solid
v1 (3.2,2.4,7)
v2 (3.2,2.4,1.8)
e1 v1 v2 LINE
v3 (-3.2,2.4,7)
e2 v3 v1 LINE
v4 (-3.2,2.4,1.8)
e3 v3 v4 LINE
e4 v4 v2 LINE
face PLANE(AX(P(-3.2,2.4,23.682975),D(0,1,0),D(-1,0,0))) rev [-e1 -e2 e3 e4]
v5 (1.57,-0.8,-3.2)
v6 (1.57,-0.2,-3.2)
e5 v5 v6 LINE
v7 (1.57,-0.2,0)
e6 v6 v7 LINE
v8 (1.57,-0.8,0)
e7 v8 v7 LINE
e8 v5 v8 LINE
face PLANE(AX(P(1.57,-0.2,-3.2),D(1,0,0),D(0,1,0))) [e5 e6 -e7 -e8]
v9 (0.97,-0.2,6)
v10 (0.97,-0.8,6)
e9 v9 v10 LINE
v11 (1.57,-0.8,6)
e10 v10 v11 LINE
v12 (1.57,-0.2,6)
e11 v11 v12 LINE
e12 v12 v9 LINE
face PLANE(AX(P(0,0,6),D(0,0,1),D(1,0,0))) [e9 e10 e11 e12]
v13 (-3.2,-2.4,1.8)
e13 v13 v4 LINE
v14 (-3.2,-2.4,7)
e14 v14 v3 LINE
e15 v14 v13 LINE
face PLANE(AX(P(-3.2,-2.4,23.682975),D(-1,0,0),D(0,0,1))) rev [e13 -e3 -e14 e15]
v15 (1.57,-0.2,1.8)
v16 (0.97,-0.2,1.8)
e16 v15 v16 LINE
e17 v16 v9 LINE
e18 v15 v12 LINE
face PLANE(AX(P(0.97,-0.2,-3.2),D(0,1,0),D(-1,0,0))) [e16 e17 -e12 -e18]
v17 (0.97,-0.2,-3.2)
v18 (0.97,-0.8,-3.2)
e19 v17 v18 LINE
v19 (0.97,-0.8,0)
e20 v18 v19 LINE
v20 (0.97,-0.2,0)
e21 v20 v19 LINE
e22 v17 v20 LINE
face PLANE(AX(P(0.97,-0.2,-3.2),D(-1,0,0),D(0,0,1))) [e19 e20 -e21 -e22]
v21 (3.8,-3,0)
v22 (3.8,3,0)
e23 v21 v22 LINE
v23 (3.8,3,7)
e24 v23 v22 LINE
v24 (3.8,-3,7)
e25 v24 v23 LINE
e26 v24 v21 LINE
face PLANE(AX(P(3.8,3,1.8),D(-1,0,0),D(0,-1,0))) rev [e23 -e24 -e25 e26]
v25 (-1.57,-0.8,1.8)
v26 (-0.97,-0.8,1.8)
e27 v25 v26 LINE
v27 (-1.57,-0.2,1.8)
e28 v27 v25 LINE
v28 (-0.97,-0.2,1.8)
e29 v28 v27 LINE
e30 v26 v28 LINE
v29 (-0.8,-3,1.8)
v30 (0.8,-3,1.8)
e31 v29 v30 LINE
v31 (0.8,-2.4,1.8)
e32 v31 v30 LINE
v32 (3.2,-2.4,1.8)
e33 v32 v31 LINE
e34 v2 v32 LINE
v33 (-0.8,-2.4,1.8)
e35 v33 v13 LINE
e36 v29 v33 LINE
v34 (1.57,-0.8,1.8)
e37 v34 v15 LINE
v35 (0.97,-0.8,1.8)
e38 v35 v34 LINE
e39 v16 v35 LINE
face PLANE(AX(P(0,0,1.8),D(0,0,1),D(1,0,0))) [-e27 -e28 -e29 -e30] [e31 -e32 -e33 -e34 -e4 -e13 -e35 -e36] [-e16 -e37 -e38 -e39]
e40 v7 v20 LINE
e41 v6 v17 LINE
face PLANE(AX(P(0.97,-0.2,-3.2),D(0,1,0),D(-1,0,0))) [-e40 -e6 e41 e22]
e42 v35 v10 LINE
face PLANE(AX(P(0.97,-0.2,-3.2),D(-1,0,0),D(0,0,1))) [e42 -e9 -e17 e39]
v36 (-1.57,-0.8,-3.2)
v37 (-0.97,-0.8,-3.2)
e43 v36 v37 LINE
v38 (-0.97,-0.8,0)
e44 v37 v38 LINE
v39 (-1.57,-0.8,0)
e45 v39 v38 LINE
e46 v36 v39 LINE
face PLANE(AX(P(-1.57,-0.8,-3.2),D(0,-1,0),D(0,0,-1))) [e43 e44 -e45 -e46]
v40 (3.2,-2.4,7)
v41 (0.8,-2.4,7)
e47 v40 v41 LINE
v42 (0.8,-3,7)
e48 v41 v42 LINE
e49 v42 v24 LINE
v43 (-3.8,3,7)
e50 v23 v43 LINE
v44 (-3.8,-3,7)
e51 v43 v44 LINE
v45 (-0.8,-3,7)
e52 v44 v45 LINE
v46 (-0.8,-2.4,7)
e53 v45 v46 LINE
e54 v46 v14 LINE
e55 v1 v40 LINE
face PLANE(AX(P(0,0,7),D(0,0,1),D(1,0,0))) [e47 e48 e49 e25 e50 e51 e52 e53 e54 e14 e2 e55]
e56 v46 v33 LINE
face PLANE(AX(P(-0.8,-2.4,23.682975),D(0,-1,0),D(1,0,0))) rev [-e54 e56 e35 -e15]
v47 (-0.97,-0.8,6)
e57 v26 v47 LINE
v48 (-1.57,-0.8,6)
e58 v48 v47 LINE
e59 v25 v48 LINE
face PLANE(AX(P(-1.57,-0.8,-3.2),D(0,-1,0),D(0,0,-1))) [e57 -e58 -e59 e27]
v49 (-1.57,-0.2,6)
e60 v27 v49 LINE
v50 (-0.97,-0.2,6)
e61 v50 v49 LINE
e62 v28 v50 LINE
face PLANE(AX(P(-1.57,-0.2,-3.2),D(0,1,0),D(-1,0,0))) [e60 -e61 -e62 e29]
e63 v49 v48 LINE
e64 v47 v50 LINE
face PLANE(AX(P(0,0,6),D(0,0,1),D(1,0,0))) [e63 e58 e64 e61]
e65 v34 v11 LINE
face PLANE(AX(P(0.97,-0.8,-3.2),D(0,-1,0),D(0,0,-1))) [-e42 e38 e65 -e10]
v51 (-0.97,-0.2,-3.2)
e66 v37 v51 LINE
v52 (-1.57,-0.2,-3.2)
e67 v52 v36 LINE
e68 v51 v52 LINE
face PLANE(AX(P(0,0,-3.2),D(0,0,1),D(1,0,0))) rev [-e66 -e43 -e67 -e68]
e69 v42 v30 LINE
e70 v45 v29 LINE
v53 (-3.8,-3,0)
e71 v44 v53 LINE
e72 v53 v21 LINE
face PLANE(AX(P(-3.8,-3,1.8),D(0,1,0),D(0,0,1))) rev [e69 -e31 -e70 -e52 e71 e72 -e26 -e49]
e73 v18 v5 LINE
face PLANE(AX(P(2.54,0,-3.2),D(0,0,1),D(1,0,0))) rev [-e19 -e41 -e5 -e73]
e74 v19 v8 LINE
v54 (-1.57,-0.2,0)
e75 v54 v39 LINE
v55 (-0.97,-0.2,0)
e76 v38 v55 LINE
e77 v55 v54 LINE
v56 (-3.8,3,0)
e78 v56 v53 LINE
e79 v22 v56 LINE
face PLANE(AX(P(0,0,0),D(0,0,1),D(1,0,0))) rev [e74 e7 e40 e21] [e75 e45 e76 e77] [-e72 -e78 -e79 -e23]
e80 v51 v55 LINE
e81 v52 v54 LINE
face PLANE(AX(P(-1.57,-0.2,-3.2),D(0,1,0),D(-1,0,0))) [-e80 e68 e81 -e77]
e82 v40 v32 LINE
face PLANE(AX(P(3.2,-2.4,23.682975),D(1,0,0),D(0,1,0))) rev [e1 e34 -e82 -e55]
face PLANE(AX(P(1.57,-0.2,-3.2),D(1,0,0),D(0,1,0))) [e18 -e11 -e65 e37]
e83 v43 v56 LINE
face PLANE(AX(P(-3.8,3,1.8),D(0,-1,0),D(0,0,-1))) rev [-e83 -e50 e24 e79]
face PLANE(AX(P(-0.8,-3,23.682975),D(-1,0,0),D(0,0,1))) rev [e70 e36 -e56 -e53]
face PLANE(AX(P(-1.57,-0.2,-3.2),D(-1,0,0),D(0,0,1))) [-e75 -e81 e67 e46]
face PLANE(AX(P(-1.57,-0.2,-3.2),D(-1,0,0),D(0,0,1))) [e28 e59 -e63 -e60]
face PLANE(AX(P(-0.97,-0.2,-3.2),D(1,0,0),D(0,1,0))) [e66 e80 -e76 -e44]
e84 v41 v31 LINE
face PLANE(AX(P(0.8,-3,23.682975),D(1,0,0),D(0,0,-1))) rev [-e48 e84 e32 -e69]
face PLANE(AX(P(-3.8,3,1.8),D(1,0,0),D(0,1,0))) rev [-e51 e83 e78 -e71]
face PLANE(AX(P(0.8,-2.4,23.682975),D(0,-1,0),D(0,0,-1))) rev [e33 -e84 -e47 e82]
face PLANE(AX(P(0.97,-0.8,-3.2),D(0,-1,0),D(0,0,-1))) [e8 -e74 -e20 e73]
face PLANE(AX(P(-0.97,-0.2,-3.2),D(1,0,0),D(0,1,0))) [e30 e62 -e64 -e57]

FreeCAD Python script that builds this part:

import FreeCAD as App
import Part
import Sketcher


def add_polygon(sketch, points):
    """Adds a closed chain of lines whose ends are joined by coincident constraints."""
    first, n = sketch.GeometryCount, len(points)
    for a, b in zip(points, points[1:] + points[:1]):
        sketch.addGeometry(Part.LineSegment(App.Vector(*a, 0), App.Vector(*b, 0)), False)
    for i in range(n):
        sketch.addConstraint(Sketcher.Constraint("Coincident", first + i, 2, first + (i + 1) % n, 1))

doc = App.newDocument("Part")
params = doc.addObject("Spreadsheet::Sheet", "Params")
for row, (alias, value) in enumerate([
    ("sketch1_height", "6 mm"),
    ("sketch1_width", "7.6 mm"),
    ("pad1_length", "1.8 mm"),
    ("sketch2_width", "3 mm"),
    ("sketch2_height", "6 mm"),
    ("sketch2_width2", "2.4 mm"),
    ("sketch2_width3", "6.4 mm"),
    ("sketch2_height2", "0.6 mm"),
    ("pad2_length", "5.2 mm"),
    ("sketch3_width", "0.6 mm"),
    ("pad3_length", "9.2 mm"),
    ("linearpattern_pitch", "2.54 mm"),
], start=1):
    params.set(f"A{row}", alias)
    params.set(f"B{row}", "=" + value)
    params.setAlias(f"B{row}", alias)

body = doc.addObject("PartDesign::Body", "Body")

# Sketch on XY plane
sketch1 = body.newObject("Sketcher::SketchObject", "Sketch")
sketch1.AttachmentSupport = (doc.getObject("XY_Plane"), [""])
sketch1.MapMode = "FlatFace"
add_polygon(sketch1, [(-4, 3), (-4, -3), (4, -3), (4, 3)])  # lines 0-3
sketch1.addConstraint([
    Sketcher.Constraint("Vertical", 0),
    Sketcher.Constraint("Horizontal", 1),
    Sketcher.Constraint("Vertical", 2),
    Sketcher.Constraint("Horizontal", 3),
    Sketcher.Constraint("Symmetric", 0, 2, 2, 2, -1, 1),
    Sketcher.Constraint("DistanceY", 0, 2, 0, 1, 6.0),
    Sketcher.Constraint("DistanceX", 1, 1, 1, 2, 7.6),
])
sketch1.setExpression("Constraints[9]", "Params.sketch1_height")
sketch1.setExpression("Constraints[10]", "Params.sketch1_width")
pad1 = body.newObject("PartDesign::Pad", "Pad")
pad1.Profile = sketch1
pad1.setExpression("Length", "Params.pad1_length")

# Sketch on XY plane
sketch2 = body.newObject("Sketcher::SketchObject", "Sketch001")
sketch2.AttachmentSupport = (doc.getObject("XY_Plane"), [""])
sketch2.MapMode = "FlatFace"
sketch2.AttachmentOffset = App.Placement(App.Vector(0, 0, 1.8), App.Rotation())
add_polygon(sketch2, [(-0.8, -3), (-0.8, -2.4), (-3.2, -2.4), (-3.2, 2.4), (3.2, 2.4), (3.2, -2.4), (0.8, -2.4), (0.8, -3), (3.8, -3), (3.8, 3), (-3.8, 3), (-3.8, -3)])  # lines 0-11
sketch2.addConstraint([
    Sketcher.Constraint("Vertical", 0),
    Sketcher.Constraint("Horizontal", 1),
    Sketcher.Constraint("Vertical", 2),
    Sketcher.Constraint("Horizontal", 3),
    Sketcher.Constraint("Vertical", 4),
    Sketcher.Constraint("Horizontal", 5),
    Sketcher.Constraint("Vertical", 6),
    Sketcher.Constraint("Horizontal", 7),
    Sketcher.Constraint("Vertical", 8),
    Sketcher.Constraint("Horizontal", 9),
    Sketcher.Constraint("Vertical", 10),
    Sketcher.Constraint("Horizontal", 11),
    Sketcher.Constraint("Symmetric", 1, 2, 3, 2, -1, 1),
    Sketcher.Constraint("Symmetric", 7, 2, 9, 2, -1, 1),
    Sketcher.Constraint("Symmetric", 0, 2, 5, 2, -2),
    Sketcher.Constraint("Horizontal", 7, 2, 10, 2),
    Sketcher.Constraint("DistanceX", 7, 1, 7, 2, 3.0),
    Sketcher.Constraint("DistanceY", 8, 1, 8, 2, 6.0),
    Sketcher.Constraint("DistanceX", 1, 2, 1, 1, 2.4),
    Sketcher.Constraint("DistanceX", 3, 1, 3, 2, 6.4),
    Sketcher.Constraint("DistanceY", 0, 1, 0, 2, 0.6),
])
sketch2.setExpression("Constraints[28]", "Params.sketch2_width")
sketch2.setExpression("Constraints[29]", "Params.sketch2_height")
sketch2.setExpression("Constraints[30]", "Params.sketch2_width2")
sketch2.setExpression("Constraints[31]", "Params.sketch2_width3")
sketch2.setExpression("Constraints[32]", "Params.sketch2_height2")
pad2 = body.newObject("PartDesign::Pad", "Pad001")
pad2.Profile = sketch2
pad2.setExpression("Length", "Params.pad2_length")

# Sketch on XY plane
sketch3 = body.newObject("Sketcher::SketchObject", "Sketch002")
sketch3.AttachmentSupport = (doc.getObject("XY_Plane"), [""])
sketch3.MapMode = "FlatFace"
sketch3.AttachmentOffset = App.Placement(App.Vector(0, 0, -3.2), App.Rotation())
add_polygon(sketch3, [(-1.6, -0.2), (-1.6, -0.8), (-1, -0.8), (-1, -0.2)])  # lines 0-3
sketch3.addConstraint([
    Sketcher.Constraint("Vertical", 0),
    Sketcher.Constraint("Horizontal", 1),
    Sketcher.Constraint("Vertical", 2),
    Sketcher.Constraint("Horizontal", 3),
    Sketcher.Constraint("Equal", 3, 0),
    Sketcher.Constraint("DistanceX", 1, 1, 1, 2, 0.6),
    Sketcher.Constraint("DistanceY", 0, 2, -1, 1, 0.8),
    Sketcher.Constraint("DistanceX", 0, 2, -1, 1, 1.57),
])
sketch3.setExpression("Constraints[9]", "Params.sketch3_width")
pad3 = body.newObject("PartDesign::Pad", "Pad002")
pad3.Profile = sketch3
pad3.setExpression("Length", "Params.pad3_length")
doc.recompute()

linearpattern = body.newObject("PartDesign::LinearPattern", "LinearPattern")
linearpattern.Originals = [pad3]
linearpattern.Direction = (doc.getObject("X_Axis"), [""])
linearpattern.Mode = "offset"
linearpattern.setExpression("Offset", "Params.linearpattern_pitch")
linearpattern.Occurrences = 2
body.Tip = linearpattern

doc.recompute()
